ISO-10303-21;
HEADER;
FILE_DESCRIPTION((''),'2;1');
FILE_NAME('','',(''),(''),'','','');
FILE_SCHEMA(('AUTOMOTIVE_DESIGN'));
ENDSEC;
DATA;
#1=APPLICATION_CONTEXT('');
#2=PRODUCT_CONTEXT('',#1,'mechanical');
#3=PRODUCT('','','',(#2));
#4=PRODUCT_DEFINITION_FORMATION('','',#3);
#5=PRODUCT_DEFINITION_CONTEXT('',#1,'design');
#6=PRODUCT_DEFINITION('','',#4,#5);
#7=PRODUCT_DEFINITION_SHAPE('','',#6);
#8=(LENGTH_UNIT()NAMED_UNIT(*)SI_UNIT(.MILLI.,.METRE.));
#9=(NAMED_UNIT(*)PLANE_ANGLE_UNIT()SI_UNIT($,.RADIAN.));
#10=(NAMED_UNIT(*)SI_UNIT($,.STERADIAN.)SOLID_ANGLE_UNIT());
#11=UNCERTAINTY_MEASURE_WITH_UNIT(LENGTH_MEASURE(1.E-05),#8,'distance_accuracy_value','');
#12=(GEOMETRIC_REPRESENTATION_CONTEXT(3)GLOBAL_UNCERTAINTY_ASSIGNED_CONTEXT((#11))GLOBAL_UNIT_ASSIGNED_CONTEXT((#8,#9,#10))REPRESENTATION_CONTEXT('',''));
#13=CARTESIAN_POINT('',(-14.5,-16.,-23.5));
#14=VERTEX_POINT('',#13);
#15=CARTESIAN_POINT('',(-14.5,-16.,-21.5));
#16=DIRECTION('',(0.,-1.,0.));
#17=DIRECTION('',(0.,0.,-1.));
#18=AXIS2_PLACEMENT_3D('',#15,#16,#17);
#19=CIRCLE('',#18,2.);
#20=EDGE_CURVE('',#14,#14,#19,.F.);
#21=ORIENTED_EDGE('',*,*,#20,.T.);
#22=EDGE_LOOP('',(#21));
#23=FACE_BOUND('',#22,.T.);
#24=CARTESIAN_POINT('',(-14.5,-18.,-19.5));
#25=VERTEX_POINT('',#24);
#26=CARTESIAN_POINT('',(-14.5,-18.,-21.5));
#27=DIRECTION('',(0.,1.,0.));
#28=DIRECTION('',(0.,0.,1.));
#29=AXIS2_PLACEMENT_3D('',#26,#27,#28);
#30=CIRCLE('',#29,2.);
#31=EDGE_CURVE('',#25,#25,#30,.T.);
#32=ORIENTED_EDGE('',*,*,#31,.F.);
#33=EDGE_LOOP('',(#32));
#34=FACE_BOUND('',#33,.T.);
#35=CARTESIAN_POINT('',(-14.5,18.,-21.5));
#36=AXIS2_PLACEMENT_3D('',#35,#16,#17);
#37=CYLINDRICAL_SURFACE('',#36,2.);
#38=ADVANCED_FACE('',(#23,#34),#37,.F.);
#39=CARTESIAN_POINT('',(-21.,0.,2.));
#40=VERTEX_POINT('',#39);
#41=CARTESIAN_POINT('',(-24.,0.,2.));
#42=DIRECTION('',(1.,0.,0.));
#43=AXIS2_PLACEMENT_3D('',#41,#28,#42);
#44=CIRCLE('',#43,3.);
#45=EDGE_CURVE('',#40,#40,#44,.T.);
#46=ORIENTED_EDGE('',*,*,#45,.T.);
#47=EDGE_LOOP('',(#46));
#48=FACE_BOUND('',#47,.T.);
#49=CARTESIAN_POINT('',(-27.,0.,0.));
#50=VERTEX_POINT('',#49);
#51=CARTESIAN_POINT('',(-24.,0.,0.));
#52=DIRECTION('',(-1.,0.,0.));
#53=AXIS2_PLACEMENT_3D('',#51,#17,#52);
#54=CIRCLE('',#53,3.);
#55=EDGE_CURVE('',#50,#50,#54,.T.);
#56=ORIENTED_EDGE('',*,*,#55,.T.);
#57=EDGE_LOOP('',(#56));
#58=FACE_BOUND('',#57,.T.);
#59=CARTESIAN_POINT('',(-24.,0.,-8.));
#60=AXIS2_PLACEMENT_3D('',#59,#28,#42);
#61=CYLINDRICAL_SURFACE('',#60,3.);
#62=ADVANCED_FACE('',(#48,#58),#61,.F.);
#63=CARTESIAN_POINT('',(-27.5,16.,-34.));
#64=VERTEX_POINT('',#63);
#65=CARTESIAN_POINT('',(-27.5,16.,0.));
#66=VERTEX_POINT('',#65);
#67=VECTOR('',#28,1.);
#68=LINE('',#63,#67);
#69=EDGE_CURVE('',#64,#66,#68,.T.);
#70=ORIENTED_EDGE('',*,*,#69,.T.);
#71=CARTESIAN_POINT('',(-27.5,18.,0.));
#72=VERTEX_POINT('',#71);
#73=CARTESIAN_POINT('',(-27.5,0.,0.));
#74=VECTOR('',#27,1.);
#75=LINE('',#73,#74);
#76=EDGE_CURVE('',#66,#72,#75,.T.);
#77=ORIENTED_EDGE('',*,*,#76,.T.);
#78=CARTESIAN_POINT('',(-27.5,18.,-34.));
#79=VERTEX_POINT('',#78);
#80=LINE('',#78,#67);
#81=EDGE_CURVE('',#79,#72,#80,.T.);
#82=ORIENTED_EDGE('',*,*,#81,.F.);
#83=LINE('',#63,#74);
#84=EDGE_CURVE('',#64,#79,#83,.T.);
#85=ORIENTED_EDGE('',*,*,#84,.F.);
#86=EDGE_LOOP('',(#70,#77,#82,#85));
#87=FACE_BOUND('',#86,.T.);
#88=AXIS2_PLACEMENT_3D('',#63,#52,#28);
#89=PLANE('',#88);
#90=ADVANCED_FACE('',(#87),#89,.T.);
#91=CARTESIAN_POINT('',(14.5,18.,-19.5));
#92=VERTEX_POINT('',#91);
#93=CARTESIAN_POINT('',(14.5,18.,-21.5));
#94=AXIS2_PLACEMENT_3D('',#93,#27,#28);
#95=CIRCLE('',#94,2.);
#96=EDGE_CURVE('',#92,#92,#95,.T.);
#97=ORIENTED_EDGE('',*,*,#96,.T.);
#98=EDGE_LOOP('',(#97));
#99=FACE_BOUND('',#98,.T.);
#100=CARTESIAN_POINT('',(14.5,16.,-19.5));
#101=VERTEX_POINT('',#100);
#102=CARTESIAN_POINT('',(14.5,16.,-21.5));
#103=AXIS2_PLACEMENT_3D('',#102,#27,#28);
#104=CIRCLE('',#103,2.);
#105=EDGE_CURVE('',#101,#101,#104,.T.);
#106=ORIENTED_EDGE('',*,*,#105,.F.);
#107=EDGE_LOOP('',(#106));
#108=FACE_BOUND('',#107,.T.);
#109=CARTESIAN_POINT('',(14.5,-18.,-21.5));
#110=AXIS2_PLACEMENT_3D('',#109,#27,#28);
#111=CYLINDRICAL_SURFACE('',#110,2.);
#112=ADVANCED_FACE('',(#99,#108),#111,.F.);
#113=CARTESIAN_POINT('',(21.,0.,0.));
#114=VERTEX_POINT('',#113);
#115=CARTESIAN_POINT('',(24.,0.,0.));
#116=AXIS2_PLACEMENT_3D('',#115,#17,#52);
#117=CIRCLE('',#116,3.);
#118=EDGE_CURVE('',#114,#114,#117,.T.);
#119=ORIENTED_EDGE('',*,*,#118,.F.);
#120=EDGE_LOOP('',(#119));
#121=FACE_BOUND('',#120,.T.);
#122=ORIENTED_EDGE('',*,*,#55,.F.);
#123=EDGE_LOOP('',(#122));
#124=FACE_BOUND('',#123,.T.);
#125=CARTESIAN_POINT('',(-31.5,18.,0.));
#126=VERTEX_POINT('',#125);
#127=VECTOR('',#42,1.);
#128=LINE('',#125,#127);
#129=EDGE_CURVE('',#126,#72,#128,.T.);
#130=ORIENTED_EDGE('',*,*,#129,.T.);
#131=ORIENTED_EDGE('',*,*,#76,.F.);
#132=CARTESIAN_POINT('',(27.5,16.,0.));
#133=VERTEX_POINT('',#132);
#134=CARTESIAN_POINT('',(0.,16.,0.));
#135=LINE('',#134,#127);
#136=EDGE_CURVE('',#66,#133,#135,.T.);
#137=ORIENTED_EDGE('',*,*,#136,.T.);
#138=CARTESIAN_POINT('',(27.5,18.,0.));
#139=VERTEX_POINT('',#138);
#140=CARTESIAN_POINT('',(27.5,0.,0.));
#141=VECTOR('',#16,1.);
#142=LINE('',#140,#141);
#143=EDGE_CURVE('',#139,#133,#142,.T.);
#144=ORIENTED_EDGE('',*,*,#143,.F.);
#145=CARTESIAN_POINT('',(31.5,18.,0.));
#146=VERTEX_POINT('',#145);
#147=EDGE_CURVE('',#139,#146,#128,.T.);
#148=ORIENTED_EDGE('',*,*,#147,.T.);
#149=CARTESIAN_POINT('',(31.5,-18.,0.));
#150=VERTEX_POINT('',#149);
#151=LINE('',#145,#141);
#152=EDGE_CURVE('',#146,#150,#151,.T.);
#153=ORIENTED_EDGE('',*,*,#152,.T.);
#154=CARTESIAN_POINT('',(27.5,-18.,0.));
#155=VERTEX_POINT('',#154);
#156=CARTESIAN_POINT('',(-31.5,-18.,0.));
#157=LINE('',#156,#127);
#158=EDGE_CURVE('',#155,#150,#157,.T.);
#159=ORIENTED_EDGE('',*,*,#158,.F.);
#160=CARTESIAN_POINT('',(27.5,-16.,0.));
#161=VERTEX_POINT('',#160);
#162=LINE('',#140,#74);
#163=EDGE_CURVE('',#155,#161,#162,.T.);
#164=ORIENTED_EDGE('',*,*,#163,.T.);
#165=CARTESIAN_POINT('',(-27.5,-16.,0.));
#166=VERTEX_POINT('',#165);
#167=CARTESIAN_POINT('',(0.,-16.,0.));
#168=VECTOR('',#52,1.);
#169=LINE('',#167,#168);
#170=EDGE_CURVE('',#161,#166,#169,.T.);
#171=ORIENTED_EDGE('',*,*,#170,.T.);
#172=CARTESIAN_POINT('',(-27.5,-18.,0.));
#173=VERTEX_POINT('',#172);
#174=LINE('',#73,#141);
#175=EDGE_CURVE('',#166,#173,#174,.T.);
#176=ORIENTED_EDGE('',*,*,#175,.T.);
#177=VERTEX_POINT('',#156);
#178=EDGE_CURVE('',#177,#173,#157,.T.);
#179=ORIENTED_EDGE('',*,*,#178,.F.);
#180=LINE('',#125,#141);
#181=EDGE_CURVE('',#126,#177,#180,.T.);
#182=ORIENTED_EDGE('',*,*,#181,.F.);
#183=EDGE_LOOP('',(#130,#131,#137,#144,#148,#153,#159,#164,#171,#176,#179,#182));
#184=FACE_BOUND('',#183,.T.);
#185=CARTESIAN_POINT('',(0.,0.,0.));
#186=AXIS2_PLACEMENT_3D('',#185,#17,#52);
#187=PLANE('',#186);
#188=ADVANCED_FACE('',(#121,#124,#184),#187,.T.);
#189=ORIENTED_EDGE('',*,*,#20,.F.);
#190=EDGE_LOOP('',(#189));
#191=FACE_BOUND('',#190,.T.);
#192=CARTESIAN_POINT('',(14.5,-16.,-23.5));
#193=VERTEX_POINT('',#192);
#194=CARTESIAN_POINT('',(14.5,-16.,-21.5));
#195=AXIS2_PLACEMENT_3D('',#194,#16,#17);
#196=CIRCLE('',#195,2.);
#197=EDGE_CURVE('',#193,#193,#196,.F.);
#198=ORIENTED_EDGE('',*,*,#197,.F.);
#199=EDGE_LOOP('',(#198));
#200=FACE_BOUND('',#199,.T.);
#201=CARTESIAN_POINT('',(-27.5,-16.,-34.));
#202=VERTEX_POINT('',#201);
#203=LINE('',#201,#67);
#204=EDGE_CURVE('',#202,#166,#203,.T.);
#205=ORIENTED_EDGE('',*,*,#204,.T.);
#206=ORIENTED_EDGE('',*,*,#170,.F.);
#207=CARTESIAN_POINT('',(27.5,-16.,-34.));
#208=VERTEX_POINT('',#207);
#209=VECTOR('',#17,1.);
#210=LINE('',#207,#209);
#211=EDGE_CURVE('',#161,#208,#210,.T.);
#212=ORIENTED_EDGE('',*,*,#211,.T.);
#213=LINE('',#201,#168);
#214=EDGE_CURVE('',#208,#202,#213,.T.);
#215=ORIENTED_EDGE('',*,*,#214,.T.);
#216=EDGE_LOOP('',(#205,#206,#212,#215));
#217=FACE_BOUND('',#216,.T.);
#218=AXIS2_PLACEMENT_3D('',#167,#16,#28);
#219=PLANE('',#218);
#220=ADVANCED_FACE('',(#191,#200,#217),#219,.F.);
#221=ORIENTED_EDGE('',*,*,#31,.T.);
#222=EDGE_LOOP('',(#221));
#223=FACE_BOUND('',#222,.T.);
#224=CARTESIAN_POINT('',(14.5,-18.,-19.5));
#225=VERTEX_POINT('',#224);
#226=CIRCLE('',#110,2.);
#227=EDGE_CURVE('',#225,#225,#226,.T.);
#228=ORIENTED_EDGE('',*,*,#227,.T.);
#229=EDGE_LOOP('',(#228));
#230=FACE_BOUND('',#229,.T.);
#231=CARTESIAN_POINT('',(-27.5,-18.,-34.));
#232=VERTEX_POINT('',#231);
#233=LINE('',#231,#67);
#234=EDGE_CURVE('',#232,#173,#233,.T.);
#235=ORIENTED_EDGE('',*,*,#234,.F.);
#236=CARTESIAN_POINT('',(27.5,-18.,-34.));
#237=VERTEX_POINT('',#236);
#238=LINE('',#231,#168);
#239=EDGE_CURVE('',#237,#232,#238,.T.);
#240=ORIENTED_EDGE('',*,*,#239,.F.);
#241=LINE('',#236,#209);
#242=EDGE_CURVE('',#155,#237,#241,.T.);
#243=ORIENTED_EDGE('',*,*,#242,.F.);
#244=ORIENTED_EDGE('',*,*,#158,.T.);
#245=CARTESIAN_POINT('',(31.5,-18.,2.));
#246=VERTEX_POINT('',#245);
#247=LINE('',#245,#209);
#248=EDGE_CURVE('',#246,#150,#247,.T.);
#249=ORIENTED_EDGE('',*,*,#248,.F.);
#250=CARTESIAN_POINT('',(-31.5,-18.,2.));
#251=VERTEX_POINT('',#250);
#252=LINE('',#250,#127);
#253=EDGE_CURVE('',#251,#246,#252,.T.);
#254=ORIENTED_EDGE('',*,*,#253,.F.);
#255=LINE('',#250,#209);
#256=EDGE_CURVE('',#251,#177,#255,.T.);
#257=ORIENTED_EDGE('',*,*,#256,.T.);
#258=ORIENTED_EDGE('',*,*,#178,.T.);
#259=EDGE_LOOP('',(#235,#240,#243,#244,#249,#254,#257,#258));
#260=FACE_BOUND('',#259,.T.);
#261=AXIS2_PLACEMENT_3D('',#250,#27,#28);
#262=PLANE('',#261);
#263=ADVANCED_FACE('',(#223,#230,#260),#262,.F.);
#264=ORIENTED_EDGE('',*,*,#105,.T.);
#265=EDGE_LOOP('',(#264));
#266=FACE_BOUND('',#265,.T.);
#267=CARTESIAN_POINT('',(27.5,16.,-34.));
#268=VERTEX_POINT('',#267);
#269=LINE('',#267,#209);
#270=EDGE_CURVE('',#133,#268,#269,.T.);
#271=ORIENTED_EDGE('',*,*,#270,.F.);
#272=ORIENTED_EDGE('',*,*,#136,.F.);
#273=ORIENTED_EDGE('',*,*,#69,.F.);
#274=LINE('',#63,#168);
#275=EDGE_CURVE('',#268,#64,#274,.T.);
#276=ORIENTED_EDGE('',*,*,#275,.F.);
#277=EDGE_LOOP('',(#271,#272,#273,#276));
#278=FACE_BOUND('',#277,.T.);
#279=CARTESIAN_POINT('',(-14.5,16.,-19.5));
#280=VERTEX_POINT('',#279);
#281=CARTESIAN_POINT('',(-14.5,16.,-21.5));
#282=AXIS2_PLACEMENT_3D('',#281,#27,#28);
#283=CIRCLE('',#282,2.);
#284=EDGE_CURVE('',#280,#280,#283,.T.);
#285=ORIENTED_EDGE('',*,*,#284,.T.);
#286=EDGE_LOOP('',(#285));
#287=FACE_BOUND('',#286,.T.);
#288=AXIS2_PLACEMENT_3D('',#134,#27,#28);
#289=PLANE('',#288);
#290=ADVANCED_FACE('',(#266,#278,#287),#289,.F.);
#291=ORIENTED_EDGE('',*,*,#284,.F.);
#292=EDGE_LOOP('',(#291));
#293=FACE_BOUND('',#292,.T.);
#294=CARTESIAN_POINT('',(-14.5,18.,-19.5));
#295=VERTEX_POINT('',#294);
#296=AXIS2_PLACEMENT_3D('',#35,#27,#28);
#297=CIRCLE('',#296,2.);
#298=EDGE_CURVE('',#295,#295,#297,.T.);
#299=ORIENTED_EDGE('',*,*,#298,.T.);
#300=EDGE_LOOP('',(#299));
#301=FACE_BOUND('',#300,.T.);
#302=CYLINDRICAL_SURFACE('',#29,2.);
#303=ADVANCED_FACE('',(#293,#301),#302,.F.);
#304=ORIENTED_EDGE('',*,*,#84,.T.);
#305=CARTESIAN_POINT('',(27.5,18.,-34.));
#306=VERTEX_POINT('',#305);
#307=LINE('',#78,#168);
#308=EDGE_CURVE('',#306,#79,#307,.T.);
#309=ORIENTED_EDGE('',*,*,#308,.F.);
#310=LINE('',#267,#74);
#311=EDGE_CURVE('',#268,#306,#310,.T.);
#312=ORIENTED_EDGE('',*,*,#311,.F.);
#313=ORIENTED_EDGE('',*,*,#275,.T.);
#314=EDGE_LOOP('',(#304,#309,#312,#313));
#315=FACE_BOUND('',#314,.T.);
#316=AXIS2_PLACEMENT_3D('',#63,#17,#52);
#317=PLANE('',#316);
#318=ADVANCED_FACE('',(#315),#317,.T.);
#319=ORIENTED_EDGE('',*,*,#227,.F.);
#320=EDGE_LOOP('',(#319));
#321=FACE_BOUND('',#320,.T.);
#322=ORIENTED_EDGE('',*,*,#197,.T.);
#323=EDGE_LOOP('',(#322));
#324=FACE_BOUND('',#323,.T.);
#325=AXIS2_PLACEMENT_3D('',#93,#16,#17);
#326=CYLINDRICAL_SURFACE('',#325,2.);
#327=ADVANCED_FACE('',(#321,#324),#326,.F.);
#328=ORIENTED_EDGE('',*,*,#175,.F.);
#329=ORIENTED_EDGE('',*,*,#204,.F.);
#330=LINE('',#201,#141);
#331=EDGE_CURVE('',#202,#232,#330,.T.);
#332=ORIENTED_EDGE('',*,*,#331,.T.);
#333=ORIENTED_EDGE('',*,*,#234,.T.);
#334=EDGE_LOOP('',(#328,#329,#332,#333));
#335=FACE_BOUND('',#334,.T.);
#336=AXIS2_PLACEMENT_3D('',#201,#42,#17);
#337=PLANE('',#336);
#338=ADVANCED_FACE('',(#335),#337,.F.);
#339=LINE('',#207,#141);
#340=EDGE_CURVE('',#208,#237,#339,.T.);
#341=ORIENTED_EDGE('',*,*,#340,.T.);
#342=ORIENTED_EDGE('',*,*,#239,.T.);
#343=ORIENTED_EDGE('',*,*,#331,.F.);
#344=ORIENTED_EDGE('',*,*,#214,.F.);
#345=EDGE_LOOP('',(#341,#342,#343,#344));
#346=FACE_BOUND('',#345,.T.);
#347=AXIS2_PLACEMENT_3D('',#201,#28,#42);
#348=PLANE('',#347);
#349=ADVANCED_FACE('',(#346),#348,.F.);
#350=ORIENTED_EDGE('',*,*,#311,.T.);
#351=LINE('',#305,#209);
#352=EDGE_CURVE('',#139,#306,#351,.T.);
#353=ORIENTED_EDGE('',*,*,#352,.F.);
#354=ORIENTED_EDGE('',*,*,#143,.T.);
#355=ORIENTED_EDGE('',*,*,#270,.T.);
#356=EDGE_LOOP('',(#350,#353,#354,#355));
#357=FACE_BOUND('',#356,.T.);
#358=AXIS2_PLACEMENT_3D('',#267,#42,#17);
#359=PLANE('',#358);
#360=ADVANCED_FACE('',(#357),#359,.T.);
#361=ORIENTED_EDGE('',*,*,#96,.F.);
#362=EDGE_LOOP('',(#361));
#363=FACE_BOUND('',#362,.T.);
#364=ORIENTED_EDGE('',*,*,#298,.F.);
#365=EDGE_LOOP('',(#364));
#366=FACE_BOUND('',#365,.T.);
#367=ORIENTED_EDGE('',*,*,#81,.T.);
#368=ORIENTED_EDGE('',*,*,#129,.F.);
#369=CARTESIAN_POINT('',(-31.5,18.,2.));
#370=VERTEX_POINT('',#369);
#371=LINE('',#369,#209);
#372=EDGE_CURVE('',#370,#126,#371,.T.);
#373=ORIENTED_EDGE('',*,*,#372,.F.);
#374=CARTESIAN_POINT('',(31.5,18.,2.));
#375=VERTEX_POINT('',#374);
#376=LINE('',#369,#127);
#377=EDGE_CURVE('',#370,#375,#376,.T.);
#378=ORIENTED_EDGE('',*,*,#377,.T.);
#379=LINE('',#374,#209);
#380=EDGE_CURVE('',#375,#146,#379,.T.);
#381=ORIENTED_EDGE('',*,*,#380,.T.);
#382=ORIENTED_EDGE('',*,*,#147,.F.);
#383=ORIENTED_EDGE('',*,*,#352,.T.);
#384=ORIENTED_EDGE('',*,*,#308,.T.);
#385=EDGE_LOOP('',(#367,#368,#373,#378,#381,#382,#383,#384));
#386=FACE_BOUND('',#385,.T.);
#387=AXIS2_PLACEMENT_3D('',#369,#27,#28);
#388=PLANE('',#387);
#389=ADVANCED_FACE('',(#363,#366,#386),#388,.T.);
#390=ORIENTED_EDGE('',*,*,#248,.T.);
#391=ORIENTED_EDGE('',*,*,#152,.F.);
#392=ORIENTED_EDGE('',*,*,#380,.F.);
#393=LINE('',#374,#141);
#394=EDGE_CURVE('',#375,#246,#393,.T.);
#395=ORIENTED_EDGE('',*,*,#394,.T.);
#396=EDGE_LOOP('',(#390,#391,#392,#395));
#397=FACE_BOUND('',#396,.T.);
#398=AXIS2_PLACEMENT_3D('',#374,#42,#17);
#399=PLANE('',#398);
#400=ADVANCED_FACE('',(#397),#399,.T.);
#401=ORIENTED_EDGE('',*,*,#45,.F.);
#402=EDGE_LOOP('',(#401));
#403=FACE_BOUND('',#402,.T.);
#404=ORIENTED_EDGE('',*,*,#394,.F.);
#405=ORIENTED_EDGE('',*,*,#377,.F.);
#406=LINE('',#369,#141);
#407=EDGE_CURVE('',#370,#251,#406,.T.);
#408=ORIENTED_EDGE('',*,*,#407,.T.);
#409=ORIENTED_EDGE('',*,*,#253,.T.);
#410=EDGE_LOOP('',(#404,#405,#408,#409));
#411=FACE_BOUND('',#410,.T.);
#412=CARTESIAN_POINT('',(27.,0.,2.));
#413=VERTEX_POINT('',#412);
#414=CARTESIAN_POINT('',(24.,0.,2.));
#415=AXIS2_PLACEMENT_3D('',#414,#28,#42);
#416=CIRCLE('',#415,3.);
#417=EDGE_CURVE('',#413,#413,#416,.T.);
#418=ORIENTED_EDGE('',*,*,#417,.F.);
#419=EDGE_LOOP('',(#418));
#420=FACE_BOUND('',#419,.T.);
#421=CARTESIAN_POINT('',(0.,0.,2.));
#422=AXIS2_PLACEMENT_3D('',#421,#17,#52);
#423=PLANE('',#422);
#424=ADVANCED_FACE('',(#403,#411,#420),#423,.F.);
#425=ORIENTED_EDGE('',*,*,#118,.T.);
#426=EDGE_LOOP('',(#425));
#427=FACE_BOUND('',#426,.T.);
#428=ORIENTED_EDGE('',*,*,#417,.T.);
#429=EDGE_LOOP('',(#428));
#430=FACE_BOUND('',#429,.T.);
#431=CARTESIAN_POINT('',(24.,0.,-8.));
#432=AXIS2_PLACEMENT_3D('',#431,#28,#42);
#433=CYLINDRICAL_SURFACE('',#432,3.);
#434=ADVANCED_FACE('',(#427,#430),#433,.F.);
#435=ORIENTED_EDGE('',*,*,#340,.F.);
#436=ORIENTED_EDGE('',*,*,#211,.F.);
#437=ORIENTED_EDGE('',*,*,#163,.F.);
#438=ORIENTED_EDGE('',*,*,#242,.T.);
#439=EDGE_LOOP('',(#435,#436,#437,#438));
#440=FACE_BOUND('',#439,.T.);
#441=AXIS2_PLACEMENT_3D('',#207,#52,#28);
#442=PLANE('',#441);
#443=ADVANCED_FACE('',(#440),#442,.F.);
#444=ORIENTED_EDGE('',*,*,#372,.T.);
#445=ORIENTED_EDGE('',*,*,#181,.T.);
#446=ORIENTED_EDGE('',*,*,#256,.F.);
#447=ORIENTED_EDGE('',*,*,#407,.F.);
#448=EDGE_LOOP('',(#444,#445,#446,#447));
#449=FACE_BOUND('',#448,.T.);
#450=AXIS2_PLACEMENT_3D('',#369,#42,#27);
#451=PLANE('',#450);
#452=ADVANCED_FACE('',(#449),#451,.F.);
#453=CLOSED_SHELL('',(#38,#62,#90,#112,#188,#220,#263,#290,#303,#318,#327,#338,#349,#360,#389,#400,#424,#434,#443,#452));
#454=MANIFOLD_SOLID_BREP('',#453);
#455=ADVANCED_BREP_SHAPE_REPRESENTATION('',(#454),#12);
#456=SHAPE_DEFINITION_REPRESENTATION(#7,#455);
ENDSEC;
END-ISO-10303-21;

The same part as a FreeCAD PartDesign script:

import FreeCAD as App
import Part
import Sketcher


def add_polygon(sketch, points):
    """Adds a closed chain of lines whose ends are joined by coincident constraints."""
    first, n = sketch.GeometryCount, len(points)
    for a, b in zip(points, points[1:] + points[:1]):
        sketch.addGeometry(Part.LineSegment(App.Vector(*a, 0), App.Vector(*b, 0)), False)
    for i in range(n):
        sketch.addConstraint(Sketcher.Constraint("Coincident", first + i, 2, first + (i + 1) % n, 1))

doc = App.newDocument("Part")
body = doc.addObject("PartDesign::Body", "Body")

# Sketch on XY plane
sketch1 = body.newObject("Sketcher::SketchObject", "Sketch")
sketch1.AttachmentSupport = (doc.getObject("XY_Plane"), [""])
sketch1.MapMode = "FlatFace"
add_polygon(sketch1, [(-31.5, 18), (-31.5, -18), (31.5, -18), (31.5, 18)])  # lines 0-3
sketch1.addConstraint([
    Sketcher.Constraint("Vertical", 0),
    Sketcher.Constraint("Horizontal", 1),
    Sketcher.Constraint("Vertical", 2),
    Sketcher.Constraint("Horizontal", 3),
    Sketcher.Constraint("Symmetric", 0, 2, 2, 2, -1, 1),
    Sketcher.Constraint("DistanceX", 1, 1, 1, 2, 63.0),
    Sketcher.Constraint("DistanceY", 0, 2, 0, 1, 36.0),
])
pad1 = body.newObject("PartDesign::Pad", "Pad")
pad1.Profile = sketch1
pad1.Length = 2

# Sketch on XY plane
sketch2 = body.newObject("Sketcher::SketchObject", "Sketch001")
sketch2.AttachmentSupport = (doc.getObject("XY_Plane"), [""])
sketch2.MapMode = "FlatFace"
sketch2.AttachmentOffset = App.Placement(App.Vector(0, 0, 2), App.Rotation())
sketch2.addGeometry([
    Part.Circle(App.Vector(-24, 0, 0), App.Vector(0, 0, 1), 3),
    Part.Circle(App.Vector(24, 0, 0), App.Vector(0, 0, 1), 3),
], False)
sketch2.addConstraint([
    Sketcher.Constraint("Equal", 0, 1),
    Sketcher.Constraint("Symmetric", 0, 3, 1, 3, -1, 1),
    Sketcher.Constraint("PointOnObject", 0, 3, -1),
    Sketcher.Constraint("Diameter", 0, 6.0),
    Sketcher.Constraint("DistanceX", 0, 3, -1, 1, 24.0),
])
pocket1 = body.newObject("PartDesign::Pocket", "Pocket")
pocket1.Profile = sketch2
pocket1.Length = 10

# Sketch on XZ plane
sketch3 = body.newObject("Sketcher::SketchObject", "Sketch002")
sketch3.AttachmentSupport = (doc.getObject("XZ_Plane"), [""])
sketch3.MapMode = "FlatFace"
sketch3.AttachmentOffset = App.Placement(App.Vector(0, 0, -18), App.Rotation())
add_polygon(sketch3, [(-27.5, -34), (-27.5, 2), (27.5, 2), (27.5, -34)])  # lines 0-3
sketch3.addConstraint([
    Sketcher.Constraint("Vertical", 0),
    Sketcher.Constraint("Horizontal", 1),
    Sketcher.Constraint("Vertical", 2),
    Sketcher.Constraint("Horizontal", 3),
    Sketcher.Constraint("DistanceX", 1, 1, 1, 2, 55.0),
    Sketcher.Constraint("DistanceY", 0, 1, 0, 2, 36.0),
    Sketcher.Constraint("DistanceY", -1, 1, 0, 2, 2.0),
    Sketcher.Constraint("DistanceX", 0, 2, -1, 1, 27.5),
])
pad2 = body.newObject("PartDesign::Pad", "Pad001")
pad2.Profile = sketch3
pad2.Length = 2

# Sketch on XZ plane
sketch4 = body.newObject("Sketcher::SketchObject", "Sketch003")
sketch4.AttachmentSupport = (doc.getObject("XZ_Plane"), [""])
sketch4.MapMode = "FlatFace"
sketch4.AttachmentOffset = App.Placement(App.Vector(0, 0, -18), App.Rotation())
sketch4.addGeometry([
    Part.Circle(App.Vector(-14.5, -21.5, 0), App.Vector(0, 0, 1), 2),
    Part.Circle(App.Vector(14.5, -21.5, 0), App.Vector(0, 0, 1), 2),
], False)
sketch4.addConstraint([
    Sketcher.Constraint("Equal", 0, 1),
    Sketcher.Constraint("Symmetric", 0, 3, 1, 3, -2),
    Sketcher.Constraint("Diameter", 0, 4.0),
    Sketcher.Constraint("DistanceX", 0, 3, 1, 3, 29.0),
    Sketcher.Constraint("DistanceY", 0, 3, -1, 1, 21.5),
])
pocket2 = body.newObject("PartDesign::Pocket", "Pocket001")
pocket2.Profile = sketch4
pocket2.Type = "ThroughAll"
pocket2.Reversed = True
doc.recompute()

mirrored = body.newObject("PartDesign::Mirrored", "Mirrored")
mirrored.Originals = [pad2, pocket2]
mirrored.MirrorPlane = (doc.getObject("XZ_Plane"), [""])
body.Tip = mirrored

doc.recompute()
